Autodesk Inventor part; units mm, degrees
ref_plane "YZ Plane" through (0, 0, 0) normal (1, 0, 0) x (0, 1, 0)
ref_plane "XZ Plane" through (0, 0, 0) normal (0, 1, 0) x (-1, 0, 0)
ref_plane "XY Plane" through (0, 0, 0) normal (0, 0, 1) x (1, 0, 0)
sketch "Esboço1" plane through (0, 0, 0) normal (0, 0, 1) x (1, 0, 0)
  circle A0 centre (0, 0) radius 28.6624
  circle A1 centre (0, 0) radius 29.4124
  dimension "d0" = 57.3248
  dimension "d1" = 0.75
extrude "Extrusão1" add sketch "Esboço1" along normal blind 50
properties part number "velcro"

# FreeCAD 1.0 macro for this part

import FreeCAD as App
import Part
import Sketcher
from FreeCAD import Vector

doc = App.newDocument("Part")
params = doc.addObject("Spreadsheet::Sheet", "Params")
for row, (alias, value) in enumerate([
    ("pad1_length", "50 mm"),
], start=1):
    params.set(f"A{row}", alias)
    params.set(f"B{row}", "=" + value)
    params.setAlias(f"B{row}", alias)

body = doc.addObject("PartDesign::Body", "Body")

# Sketch on XY plane
sketch1 = body.newObject("Sketcher::SketchObject", "Sketch")
sketch1.AttachmentSupport = (doc.getObject("XY_Plane"), [""])
sketch1.MapMode = "FlatFace"
sketch1.addGeometry(Part.Circle(Vector(0, 0, 0), Vector(0, 0, 1), 29), False)
sketch1.addGeometry(Part.Circle(Vector(0, 0, 0), Vector(0, 0, 1), 29), False)
sketch1.addConstraint(Sketcher.Constraint("Coincident", 0, 3, -1, 1))
sketch1.addConstraint(Sketcher.Constraint("Coincident", 1, 3, -1, 1))
sketch1.addConstraint(Sketcher.Constraint("Diameter", 1, 57.3248))
sketch1.addConstraint(Sketcher.Constraint("Diameter", 0, 58.8248))
pad1 = body.newObject("PartDesign::Pad", "Pad")
pad1.Profile = sketch1
pad1.setExpression("Length", "Params.pad1_length")

doc.recompute()
